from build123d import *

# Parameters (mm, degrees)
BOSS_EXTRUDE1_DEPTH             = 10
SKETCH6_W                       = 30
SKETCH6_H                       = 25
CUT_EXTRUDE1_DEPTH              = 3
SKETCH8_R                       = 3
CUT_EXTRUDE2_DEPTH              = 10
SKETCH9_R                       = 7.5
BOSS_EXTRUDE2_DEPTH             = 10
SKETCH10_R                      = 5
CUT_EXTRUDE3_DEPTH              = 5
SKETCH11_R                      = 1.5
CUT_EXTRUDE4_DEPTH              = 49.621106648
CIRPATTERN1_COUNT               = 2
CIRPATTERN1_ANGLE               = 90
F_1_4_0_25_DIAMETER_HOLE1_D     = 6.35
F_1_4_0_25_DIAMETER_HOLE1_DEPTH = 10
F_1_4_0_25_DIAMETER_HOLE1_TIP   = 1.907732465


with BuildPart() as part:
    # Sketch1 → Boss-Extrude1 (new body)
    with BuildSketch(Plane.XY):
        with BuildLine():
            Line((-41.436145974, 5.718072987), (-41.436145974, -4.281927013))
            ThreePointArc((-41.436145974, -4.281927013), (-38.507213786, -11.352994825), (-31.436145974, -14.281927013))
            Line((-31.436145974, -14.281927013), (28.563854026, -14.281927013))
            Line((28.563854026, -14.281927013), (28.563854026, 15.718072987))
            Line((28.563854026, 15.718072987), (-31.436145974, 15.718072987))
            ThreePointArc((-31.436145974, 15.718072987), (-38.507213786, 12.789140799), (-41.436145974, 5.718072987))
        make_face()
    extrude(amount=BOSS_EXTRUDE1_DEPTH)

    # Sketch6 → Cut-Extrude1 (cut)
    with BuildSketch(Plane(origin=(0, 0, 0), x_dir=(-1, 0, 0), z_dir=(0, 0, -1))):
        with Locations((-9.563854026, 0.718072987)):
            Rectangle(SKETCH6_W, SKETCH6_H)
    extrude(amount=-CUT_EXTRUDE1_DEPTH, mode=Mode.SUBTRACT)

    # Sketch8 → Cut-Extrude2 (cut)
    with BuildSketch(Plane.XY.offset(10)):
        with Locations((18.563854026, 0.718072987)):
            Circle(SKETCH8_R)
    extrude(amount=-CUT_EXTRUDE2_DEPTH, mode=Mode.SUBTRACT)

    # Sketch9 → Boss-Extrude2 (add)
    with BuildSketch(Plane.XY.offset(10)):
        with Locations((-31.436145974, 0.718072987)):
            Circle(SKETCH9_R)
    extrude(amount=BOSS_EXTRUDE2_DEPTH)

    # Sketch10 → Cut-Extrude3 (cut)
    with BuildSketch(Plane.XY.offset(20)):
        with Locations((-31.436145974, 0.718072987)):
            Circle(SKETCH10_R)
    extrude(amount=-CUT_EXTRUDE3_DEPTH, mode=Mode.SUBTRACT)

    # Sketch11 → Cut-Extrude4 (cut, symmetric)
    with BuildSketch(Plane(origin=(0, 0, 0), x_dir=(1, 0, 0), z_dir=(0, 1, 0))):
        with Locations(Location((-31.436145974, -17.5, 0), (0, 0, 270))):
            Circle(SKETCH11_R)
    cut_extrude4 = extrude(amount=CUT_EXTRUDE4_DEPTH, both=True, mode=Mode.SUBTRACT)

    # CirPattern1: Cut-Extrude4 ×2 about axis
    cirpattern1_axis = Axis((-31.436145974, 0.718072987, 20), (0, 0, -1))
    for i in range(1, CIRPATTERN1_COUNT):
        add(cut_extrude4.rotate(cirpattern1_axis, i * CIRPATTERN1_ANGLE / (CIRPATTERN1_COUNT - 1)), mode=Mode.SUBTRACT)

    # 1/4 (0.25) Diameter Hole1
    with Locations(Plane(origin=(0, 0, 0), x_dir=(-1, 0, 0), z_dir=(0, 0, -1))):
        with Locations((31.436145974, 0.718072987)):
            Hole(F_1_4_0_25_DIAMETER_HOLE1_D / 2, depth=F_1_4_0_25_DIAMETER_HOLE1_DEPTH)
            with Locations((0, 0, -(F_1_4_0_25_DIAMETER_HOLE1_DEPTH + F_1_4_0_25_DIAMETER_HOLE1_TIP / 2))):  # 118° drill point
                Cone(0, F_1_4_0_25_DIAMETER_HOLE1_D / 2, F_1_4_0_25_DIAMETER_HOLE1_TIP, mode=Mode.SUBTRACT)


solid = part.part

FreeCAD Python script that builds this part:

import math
import FreeCAD as App
import Part
import Sketcher
from FreeCAD import Vector
Q = App.Units.Quantity

doc = App.newDocument("Part")
params = doc.addObject("Spreadsheet::Sheet", "Params")
for row, (alias, value) in enumerate([
    ("sketch1_radius", "10 mm"),
    ("sketch1_width", "60 mm"),
    ("sketch1_height", "10 mm"),
    ("pad1_length", "10 mm"),
    ("sketch2_width", "30 mm"),
    ("sketch2_height", "25 mm"),
    ("pocket1_length", "3 mm"),
    ("sketch3_diameter", "6 mm"),
    ("pocket2_length", "10 mm"),
    ("sketch4_diameter", "15 mm"),
    ("pad2_length", "10 mm"),
    ("sketch5_diameter", "10 mm"),
    ("pocket3_length", "5 mm"),
    ("sketch6_diameter", "3 mm"),
    ("pocket4_length", "99.242213 mm"),
    ("sketch7_diameter", "6.35 mm"),
    ("hole_diameter", "6.35 mm"),
    ("hole_depth", "10 mm"),
], start=1):
    params.set(f"A{row}", alias)
    params.set(f"B{row}", "=" + value)
    params.setAlias(f"B{row}", alias)

body = doc.addObject("PartDesign::Body", "Body")

# Sketch on XY plane
sketch1 = doc.addObject("Sketcher::SketchObject", "Sketch")
body.addObject(sketch1)
sketch1.AttachmentSupport = (doc.XY_Plane, [""])
sketch1.MapMode = "FlatFace"
sketch1.addGeometry([
    Part.LineSegment(Vector(-41, 6, 0), Vector(-41, -4, 0)),  # 0
    Part.ArcOfCircle(Part.Circle(Vector(-31, -4, 0), Vector(0, 0, 1), 10), math.radians(180), math.radians(270)),  # 1
    Part.LineSegment(Vector(-31, -14, 0), Vector(29, -14, 0)),  # 2
    Part.LineSegment(Vector(29, -14, 0), Vector(29, 16, 0)),  # 3
    Part.LineSegment(Vector(29, 16, 0), Vector(-31, 16, 0)),  # 4
    Part.ArcOfCircle(Part.Circle(Vector(-31, 6, 0), Vector(0, 0, 1), 10), math.radians(90), math.radians(180)),  # 5
], False)
sketch1.addConstraint([
    Sketcher.Constraint("Tangent", 0, 2, 1, 1),
    Sketcher.Constraint("Tangent", 1, 2, 2, 1),
    Sketcher.Constraint("Coincident", 2, 2, 3, 1),
    Sketcher.Constraint("Coincident", 3, 2, 4, 1),
    Sketcher.Constraint("Tangent", 4, 2, 5, 1),
    Sketcher.Constraint("Tangent", 5, 2, 0, 1),
    Sketcher.Constraint("Vertical", 0),
    Sketcher.Constraint("Horizontal", 2),
    Sketcher.Constraint("Vertical", 3),
    Sketcher.Constraint("Horizontal", 4),
    Sketcher.Constraint("Equal", 1, 5),
    Sketcher.Constraint("Radius", 1, Q("10 mm")),
    Sketcher.Constraint("DistanceX", 2, 1, 2, 2, Q("60 mm")),
    Sketcher.Constraint("DistanceY", 0, 2, 0, 1, Q("10 mm")),
    Sketcher.Constraint("DistanceX", 1, 3, -1, 1, Q("31.436146 mm")),
    Sketcher.Constraint("DistanceY", 1, 3, -1, 1, Q("4.281927 mm")),
])
sketch1.setExpression("Constraints[11]", "Params.sketch1_radius")
sketch1.setExpression("Constraints[12]", "Params.sketch1_width")
sketch1.setExpression("Constraints[13]", "Params.sketch1_height")
pad1 = doc.addObject("PartDesign::Pad", "Pad")
body.addObject(pad1)
pad1.Profile = sketch1
pad1.setExpression("Length", "Params.pad1_length")

# Sketch on XY plane
sketch2 = doc.addObject("Sketcher::SketchObject", "Sketch001")
body.addObject(sketch2)
sketch2.AttachmentSupport = (doc.XY_Plane, [""])
sketch2.MapMode = "FlatFace"
sketch2.addGeometry([
    Part.LineSegment(Vector(25, 13, 0), Vector(25, -12, 0)),
    Part.LineSegment(Vector(25, -12, 0), Vector(-5, -12, 0)),
    Part.LineSegment(Vector(-5, -12, 0), Vector(-5, 13, 0)),
    Part.LineSegment(Vector(-5, 13, 0), Vector(25, 13, 0)),
], False)
sketch2.addConstraint([
    Sketcher.Constraint("Coincident", 0, 2, 1, 1),
    Sketcher.Constraint("Coincident", 1, 2, 2, 1),
    Sketcher.Constraint("Coincident", 2, 2, 3, 1),
    Sketcher.Constraint("Coincident", 3, 2, 0, 1),
    Sketcher.Constraint("Vertical", 0),
    Sketcher.Constraint("Horizontal", 1),
    Sketcher.Constraint("Vertical", 2),
    Sketcher.Constraint("Horizontal", 3),
    Sketcher.Constraint("DistanceX", 1, 2, 1, 1, Q("30 mm")),
    Sketcher.Constraint("DistanceY", 0, 2, 0, 1, Q("25 mm")),
    Sketcher.Constraint("DistanceX", -1, 1, 0, 2, Q("24.563854 mm")),
    Sketcher.Constraint("DistanceY", 0, 2, -1, 1, Q("11.781927 mm")),
])
sketch2.setExpression("Constraints[8]", "Params.sketch2_width")
sketch2.setExpression("Constraints[9]", "Params.sketch2_height")
pocket1 = doc.addObject("PartDesign::Pocket", "Pocket")
body.addObject(pocket1)
pocket1.Profile = sketch2
pocket1.setExpression("Length", "Params.pocket1_length")
pocket1.Reversed = True

# Sketch on XY plane
sketch3 = doc.addObject("Sketcher::SketchObject", "Sketch002")
body.addObject(sketch3)
sketch3.AttachmentSupport = (doc.XY_Plane, [""])
sketch3.MapMode = "FlatFace"
sketch3.AttachmentOffset = App.Placement(Vector(0, 0, 10), App.Rotation())
sketch3.addGeometry(Part.Circle(Vector(18.6, 0.7, 0), Vector(0, 0, 1), 3), False)
sketch3.addConstraint([
    Sketcher.Constraint("Diameter", 0, Q("6 mm")),
    Sketcher.Constraint("DistanceX", -1, 1, 0, 3, Q("18.563854 mm")),
    Sketcher.Constraint("DistanceY", -1, 1, 0, 3, Q("0.718073 mm")),
])
sketch3.setExpression("Constraints[0]", "Params.sketch3_diameter")
pocket2 = doc.addObject("PartDesign::Pocket", "Pocket001")
body.addObject(pocket2)
pocket2.Profile = sketch3
pocket2.setExpression("Length", "Params.pocket2_length")

# Sketch on XY plane
sketch4 = doc.addObject("Sketcher::SketchObject", "Sketch003")
body.addObject(sketch4)
sketch4.AttachmentSupport = (doc.XY_Plane, [""])
sketch4.MapMode = "FlatFace"
sketch4.AttachmentOffset = App.Placement(Vector(0, 0, 10), App.Rotation())
sketch4.addGeometry(Part.Circle(Vector(-31, 1, 0), Vector(0, 0, 1), 8), False)
sketch4.addConstraint([
    Sketcher.Constraint("Diameter", 0, Q("15 mm")),
    Sketcher.Constraint("DistanceX", 0, 3, -1, 1, Q("31.436146 mm")),
    Sketcher.Constraint("DistanceY", -1, 1, 0, 3, Q("0.718073 mm")),
])
sketch4.setExpression("Constraints[0]", "Params.sketch4_diameter")
pad2 = doc.addObject("PartDesign::Pad", "Pad001")
body.addObject(pad2)
pad2.Profile = sketch4
pad2.setExpression("Length", "Params.pad2_length")

# Sketch on XY plane
sketch5 = doc.addObject("Sketcher::SketchObject", "Sketch004")
body.addObject(sketch5)
sketch5.AttachmentSupport = (doc.XY_Plane, [""])
sketch5.MapMode = "FlatFace"
sketch5.AttachmentOffset = App.Placement(Vector(0, 0, 20), App.Rotation())
sketch5.addGeometry(Part.Circle(Vector(-31, 1, 0), Vector(0, 0, 1), 5), False)
sketch5.addConstraint([
    Sketcher.Constraint("Diameter", 0, Q("10 mm")),
    Sketcher.Constraint("DistanceX", 0, 3, -1, 1, Q("31.436146 mm")),
    Sketcher.Constraint("DistanceY", -1, 1, 0, 3, Q("0.718073 mm")),
])
sketch5.setExpression("Constraints[0]", "Params.sketch5_diameter")
pocket3 = doc.addObject("PartDesign::Pocket", "Pocket002")
body.addObject(pocket3)
pocket3.Profile = sketch5
pocket3.setExpression("Length", "Params.pocket3_length")

# Sketch on XZ plane
sketch6 = doc.addObject("Sketcher::SketchObject", "Sketch005")
body.addObject(sketch6)
sketch6.AttachmentSupport = (doc.XZ_Plane, [""])
sketch6.MapMode = "FlatFace"
sketch6.addGeometry(Part.Circle(Vector(-31.4, 17.5, 0), Vector(0, 0, 1), 1.5), False)
sketch6.addConstraint([
    Sketcher.Constraint("Diameter", 0, Q("3 mm")),
    Sketcher.Constraint("DistanceY", -1, 1, 0, 3, Q("17.5 mm")),
    Sketcher.Constraint("DistanceX", 0, 3, -1, 1, Q("31.436146 mm")),
])
sketch6.setExpression("Constraints[0]", "Params.sketch6_diameter")
pocket4 = doc.addObject("PartDesign::Pocket", "Pocket003")
body.addObject(pocket4)
pocket4.Profile = sketch6
pocket4.setExpression("Length", "Params.pocket4_length")
pocket4.Midplane = True
doc.recompute()

datumline = doc.addObject("PartDesign::Line", "DatumLine")
body.addObject(datumline)
datumline.Placement = App.Placement(Vector(-31.436146, 0.718073, 0), App.Rotation(Vector(0, 0, 1), Vector(0, 0, -1)))
polarpattern = doc.addObject("PartDesign::PolarPattern", "PolarPattern")
body.addObject(polarpattern)
polarpattern.Originals = [pocket4]
polarpattern.Axis = (datumline, [""])
polarpattern.Angle = 90
polarpattern.Occurrences = 2
body.Tip = polarpattern

# Sketch on XY plane
sketch7 = doc.addObject("Sketcher::SketchObject", "Sketch006")
body.addObject(sketch7)
sketch7.AttachmentSupport = (doc.XY_Plane, [""])
sketch7.MapMode = "FlatFace"
sketch7.addGeometry(Part.Circle(Vector(-31.4, 0.7, 0), Vector(0, 0, 1), 3.2), False)
sketch7.addConstraint([
    Sketcher.Constraint("Diameter", 0, Q("6.35 mm")),
    Sketcher.Constraint("DistanceX", 0, 3, -1, 1, Q("31.436146 mm")),
    Sketcher.Constraint("DistanceY", -1, 1, 0, 3, Q("0.718073 mm")),
])
sketch7.setExpression("Constraints[0]", "Params.sketch7_diameter")
doc.recompute()
hole = doc.addObject("PartDesign::Hole", "Hole")
body.addObject(hole)
hole.Profile = sketch7
hole.ThreadType = "None"
hole.setExpression("Diameter", "Params.hole_diameter")
hole.DepthType = "Dimension"
hole.setExpression("Depth", "Params.hole_depth")
hole.DrillPoint = "Angled"
hole.DrillPointAngle = 118
hole.Reversed = True

doc.recompute()
